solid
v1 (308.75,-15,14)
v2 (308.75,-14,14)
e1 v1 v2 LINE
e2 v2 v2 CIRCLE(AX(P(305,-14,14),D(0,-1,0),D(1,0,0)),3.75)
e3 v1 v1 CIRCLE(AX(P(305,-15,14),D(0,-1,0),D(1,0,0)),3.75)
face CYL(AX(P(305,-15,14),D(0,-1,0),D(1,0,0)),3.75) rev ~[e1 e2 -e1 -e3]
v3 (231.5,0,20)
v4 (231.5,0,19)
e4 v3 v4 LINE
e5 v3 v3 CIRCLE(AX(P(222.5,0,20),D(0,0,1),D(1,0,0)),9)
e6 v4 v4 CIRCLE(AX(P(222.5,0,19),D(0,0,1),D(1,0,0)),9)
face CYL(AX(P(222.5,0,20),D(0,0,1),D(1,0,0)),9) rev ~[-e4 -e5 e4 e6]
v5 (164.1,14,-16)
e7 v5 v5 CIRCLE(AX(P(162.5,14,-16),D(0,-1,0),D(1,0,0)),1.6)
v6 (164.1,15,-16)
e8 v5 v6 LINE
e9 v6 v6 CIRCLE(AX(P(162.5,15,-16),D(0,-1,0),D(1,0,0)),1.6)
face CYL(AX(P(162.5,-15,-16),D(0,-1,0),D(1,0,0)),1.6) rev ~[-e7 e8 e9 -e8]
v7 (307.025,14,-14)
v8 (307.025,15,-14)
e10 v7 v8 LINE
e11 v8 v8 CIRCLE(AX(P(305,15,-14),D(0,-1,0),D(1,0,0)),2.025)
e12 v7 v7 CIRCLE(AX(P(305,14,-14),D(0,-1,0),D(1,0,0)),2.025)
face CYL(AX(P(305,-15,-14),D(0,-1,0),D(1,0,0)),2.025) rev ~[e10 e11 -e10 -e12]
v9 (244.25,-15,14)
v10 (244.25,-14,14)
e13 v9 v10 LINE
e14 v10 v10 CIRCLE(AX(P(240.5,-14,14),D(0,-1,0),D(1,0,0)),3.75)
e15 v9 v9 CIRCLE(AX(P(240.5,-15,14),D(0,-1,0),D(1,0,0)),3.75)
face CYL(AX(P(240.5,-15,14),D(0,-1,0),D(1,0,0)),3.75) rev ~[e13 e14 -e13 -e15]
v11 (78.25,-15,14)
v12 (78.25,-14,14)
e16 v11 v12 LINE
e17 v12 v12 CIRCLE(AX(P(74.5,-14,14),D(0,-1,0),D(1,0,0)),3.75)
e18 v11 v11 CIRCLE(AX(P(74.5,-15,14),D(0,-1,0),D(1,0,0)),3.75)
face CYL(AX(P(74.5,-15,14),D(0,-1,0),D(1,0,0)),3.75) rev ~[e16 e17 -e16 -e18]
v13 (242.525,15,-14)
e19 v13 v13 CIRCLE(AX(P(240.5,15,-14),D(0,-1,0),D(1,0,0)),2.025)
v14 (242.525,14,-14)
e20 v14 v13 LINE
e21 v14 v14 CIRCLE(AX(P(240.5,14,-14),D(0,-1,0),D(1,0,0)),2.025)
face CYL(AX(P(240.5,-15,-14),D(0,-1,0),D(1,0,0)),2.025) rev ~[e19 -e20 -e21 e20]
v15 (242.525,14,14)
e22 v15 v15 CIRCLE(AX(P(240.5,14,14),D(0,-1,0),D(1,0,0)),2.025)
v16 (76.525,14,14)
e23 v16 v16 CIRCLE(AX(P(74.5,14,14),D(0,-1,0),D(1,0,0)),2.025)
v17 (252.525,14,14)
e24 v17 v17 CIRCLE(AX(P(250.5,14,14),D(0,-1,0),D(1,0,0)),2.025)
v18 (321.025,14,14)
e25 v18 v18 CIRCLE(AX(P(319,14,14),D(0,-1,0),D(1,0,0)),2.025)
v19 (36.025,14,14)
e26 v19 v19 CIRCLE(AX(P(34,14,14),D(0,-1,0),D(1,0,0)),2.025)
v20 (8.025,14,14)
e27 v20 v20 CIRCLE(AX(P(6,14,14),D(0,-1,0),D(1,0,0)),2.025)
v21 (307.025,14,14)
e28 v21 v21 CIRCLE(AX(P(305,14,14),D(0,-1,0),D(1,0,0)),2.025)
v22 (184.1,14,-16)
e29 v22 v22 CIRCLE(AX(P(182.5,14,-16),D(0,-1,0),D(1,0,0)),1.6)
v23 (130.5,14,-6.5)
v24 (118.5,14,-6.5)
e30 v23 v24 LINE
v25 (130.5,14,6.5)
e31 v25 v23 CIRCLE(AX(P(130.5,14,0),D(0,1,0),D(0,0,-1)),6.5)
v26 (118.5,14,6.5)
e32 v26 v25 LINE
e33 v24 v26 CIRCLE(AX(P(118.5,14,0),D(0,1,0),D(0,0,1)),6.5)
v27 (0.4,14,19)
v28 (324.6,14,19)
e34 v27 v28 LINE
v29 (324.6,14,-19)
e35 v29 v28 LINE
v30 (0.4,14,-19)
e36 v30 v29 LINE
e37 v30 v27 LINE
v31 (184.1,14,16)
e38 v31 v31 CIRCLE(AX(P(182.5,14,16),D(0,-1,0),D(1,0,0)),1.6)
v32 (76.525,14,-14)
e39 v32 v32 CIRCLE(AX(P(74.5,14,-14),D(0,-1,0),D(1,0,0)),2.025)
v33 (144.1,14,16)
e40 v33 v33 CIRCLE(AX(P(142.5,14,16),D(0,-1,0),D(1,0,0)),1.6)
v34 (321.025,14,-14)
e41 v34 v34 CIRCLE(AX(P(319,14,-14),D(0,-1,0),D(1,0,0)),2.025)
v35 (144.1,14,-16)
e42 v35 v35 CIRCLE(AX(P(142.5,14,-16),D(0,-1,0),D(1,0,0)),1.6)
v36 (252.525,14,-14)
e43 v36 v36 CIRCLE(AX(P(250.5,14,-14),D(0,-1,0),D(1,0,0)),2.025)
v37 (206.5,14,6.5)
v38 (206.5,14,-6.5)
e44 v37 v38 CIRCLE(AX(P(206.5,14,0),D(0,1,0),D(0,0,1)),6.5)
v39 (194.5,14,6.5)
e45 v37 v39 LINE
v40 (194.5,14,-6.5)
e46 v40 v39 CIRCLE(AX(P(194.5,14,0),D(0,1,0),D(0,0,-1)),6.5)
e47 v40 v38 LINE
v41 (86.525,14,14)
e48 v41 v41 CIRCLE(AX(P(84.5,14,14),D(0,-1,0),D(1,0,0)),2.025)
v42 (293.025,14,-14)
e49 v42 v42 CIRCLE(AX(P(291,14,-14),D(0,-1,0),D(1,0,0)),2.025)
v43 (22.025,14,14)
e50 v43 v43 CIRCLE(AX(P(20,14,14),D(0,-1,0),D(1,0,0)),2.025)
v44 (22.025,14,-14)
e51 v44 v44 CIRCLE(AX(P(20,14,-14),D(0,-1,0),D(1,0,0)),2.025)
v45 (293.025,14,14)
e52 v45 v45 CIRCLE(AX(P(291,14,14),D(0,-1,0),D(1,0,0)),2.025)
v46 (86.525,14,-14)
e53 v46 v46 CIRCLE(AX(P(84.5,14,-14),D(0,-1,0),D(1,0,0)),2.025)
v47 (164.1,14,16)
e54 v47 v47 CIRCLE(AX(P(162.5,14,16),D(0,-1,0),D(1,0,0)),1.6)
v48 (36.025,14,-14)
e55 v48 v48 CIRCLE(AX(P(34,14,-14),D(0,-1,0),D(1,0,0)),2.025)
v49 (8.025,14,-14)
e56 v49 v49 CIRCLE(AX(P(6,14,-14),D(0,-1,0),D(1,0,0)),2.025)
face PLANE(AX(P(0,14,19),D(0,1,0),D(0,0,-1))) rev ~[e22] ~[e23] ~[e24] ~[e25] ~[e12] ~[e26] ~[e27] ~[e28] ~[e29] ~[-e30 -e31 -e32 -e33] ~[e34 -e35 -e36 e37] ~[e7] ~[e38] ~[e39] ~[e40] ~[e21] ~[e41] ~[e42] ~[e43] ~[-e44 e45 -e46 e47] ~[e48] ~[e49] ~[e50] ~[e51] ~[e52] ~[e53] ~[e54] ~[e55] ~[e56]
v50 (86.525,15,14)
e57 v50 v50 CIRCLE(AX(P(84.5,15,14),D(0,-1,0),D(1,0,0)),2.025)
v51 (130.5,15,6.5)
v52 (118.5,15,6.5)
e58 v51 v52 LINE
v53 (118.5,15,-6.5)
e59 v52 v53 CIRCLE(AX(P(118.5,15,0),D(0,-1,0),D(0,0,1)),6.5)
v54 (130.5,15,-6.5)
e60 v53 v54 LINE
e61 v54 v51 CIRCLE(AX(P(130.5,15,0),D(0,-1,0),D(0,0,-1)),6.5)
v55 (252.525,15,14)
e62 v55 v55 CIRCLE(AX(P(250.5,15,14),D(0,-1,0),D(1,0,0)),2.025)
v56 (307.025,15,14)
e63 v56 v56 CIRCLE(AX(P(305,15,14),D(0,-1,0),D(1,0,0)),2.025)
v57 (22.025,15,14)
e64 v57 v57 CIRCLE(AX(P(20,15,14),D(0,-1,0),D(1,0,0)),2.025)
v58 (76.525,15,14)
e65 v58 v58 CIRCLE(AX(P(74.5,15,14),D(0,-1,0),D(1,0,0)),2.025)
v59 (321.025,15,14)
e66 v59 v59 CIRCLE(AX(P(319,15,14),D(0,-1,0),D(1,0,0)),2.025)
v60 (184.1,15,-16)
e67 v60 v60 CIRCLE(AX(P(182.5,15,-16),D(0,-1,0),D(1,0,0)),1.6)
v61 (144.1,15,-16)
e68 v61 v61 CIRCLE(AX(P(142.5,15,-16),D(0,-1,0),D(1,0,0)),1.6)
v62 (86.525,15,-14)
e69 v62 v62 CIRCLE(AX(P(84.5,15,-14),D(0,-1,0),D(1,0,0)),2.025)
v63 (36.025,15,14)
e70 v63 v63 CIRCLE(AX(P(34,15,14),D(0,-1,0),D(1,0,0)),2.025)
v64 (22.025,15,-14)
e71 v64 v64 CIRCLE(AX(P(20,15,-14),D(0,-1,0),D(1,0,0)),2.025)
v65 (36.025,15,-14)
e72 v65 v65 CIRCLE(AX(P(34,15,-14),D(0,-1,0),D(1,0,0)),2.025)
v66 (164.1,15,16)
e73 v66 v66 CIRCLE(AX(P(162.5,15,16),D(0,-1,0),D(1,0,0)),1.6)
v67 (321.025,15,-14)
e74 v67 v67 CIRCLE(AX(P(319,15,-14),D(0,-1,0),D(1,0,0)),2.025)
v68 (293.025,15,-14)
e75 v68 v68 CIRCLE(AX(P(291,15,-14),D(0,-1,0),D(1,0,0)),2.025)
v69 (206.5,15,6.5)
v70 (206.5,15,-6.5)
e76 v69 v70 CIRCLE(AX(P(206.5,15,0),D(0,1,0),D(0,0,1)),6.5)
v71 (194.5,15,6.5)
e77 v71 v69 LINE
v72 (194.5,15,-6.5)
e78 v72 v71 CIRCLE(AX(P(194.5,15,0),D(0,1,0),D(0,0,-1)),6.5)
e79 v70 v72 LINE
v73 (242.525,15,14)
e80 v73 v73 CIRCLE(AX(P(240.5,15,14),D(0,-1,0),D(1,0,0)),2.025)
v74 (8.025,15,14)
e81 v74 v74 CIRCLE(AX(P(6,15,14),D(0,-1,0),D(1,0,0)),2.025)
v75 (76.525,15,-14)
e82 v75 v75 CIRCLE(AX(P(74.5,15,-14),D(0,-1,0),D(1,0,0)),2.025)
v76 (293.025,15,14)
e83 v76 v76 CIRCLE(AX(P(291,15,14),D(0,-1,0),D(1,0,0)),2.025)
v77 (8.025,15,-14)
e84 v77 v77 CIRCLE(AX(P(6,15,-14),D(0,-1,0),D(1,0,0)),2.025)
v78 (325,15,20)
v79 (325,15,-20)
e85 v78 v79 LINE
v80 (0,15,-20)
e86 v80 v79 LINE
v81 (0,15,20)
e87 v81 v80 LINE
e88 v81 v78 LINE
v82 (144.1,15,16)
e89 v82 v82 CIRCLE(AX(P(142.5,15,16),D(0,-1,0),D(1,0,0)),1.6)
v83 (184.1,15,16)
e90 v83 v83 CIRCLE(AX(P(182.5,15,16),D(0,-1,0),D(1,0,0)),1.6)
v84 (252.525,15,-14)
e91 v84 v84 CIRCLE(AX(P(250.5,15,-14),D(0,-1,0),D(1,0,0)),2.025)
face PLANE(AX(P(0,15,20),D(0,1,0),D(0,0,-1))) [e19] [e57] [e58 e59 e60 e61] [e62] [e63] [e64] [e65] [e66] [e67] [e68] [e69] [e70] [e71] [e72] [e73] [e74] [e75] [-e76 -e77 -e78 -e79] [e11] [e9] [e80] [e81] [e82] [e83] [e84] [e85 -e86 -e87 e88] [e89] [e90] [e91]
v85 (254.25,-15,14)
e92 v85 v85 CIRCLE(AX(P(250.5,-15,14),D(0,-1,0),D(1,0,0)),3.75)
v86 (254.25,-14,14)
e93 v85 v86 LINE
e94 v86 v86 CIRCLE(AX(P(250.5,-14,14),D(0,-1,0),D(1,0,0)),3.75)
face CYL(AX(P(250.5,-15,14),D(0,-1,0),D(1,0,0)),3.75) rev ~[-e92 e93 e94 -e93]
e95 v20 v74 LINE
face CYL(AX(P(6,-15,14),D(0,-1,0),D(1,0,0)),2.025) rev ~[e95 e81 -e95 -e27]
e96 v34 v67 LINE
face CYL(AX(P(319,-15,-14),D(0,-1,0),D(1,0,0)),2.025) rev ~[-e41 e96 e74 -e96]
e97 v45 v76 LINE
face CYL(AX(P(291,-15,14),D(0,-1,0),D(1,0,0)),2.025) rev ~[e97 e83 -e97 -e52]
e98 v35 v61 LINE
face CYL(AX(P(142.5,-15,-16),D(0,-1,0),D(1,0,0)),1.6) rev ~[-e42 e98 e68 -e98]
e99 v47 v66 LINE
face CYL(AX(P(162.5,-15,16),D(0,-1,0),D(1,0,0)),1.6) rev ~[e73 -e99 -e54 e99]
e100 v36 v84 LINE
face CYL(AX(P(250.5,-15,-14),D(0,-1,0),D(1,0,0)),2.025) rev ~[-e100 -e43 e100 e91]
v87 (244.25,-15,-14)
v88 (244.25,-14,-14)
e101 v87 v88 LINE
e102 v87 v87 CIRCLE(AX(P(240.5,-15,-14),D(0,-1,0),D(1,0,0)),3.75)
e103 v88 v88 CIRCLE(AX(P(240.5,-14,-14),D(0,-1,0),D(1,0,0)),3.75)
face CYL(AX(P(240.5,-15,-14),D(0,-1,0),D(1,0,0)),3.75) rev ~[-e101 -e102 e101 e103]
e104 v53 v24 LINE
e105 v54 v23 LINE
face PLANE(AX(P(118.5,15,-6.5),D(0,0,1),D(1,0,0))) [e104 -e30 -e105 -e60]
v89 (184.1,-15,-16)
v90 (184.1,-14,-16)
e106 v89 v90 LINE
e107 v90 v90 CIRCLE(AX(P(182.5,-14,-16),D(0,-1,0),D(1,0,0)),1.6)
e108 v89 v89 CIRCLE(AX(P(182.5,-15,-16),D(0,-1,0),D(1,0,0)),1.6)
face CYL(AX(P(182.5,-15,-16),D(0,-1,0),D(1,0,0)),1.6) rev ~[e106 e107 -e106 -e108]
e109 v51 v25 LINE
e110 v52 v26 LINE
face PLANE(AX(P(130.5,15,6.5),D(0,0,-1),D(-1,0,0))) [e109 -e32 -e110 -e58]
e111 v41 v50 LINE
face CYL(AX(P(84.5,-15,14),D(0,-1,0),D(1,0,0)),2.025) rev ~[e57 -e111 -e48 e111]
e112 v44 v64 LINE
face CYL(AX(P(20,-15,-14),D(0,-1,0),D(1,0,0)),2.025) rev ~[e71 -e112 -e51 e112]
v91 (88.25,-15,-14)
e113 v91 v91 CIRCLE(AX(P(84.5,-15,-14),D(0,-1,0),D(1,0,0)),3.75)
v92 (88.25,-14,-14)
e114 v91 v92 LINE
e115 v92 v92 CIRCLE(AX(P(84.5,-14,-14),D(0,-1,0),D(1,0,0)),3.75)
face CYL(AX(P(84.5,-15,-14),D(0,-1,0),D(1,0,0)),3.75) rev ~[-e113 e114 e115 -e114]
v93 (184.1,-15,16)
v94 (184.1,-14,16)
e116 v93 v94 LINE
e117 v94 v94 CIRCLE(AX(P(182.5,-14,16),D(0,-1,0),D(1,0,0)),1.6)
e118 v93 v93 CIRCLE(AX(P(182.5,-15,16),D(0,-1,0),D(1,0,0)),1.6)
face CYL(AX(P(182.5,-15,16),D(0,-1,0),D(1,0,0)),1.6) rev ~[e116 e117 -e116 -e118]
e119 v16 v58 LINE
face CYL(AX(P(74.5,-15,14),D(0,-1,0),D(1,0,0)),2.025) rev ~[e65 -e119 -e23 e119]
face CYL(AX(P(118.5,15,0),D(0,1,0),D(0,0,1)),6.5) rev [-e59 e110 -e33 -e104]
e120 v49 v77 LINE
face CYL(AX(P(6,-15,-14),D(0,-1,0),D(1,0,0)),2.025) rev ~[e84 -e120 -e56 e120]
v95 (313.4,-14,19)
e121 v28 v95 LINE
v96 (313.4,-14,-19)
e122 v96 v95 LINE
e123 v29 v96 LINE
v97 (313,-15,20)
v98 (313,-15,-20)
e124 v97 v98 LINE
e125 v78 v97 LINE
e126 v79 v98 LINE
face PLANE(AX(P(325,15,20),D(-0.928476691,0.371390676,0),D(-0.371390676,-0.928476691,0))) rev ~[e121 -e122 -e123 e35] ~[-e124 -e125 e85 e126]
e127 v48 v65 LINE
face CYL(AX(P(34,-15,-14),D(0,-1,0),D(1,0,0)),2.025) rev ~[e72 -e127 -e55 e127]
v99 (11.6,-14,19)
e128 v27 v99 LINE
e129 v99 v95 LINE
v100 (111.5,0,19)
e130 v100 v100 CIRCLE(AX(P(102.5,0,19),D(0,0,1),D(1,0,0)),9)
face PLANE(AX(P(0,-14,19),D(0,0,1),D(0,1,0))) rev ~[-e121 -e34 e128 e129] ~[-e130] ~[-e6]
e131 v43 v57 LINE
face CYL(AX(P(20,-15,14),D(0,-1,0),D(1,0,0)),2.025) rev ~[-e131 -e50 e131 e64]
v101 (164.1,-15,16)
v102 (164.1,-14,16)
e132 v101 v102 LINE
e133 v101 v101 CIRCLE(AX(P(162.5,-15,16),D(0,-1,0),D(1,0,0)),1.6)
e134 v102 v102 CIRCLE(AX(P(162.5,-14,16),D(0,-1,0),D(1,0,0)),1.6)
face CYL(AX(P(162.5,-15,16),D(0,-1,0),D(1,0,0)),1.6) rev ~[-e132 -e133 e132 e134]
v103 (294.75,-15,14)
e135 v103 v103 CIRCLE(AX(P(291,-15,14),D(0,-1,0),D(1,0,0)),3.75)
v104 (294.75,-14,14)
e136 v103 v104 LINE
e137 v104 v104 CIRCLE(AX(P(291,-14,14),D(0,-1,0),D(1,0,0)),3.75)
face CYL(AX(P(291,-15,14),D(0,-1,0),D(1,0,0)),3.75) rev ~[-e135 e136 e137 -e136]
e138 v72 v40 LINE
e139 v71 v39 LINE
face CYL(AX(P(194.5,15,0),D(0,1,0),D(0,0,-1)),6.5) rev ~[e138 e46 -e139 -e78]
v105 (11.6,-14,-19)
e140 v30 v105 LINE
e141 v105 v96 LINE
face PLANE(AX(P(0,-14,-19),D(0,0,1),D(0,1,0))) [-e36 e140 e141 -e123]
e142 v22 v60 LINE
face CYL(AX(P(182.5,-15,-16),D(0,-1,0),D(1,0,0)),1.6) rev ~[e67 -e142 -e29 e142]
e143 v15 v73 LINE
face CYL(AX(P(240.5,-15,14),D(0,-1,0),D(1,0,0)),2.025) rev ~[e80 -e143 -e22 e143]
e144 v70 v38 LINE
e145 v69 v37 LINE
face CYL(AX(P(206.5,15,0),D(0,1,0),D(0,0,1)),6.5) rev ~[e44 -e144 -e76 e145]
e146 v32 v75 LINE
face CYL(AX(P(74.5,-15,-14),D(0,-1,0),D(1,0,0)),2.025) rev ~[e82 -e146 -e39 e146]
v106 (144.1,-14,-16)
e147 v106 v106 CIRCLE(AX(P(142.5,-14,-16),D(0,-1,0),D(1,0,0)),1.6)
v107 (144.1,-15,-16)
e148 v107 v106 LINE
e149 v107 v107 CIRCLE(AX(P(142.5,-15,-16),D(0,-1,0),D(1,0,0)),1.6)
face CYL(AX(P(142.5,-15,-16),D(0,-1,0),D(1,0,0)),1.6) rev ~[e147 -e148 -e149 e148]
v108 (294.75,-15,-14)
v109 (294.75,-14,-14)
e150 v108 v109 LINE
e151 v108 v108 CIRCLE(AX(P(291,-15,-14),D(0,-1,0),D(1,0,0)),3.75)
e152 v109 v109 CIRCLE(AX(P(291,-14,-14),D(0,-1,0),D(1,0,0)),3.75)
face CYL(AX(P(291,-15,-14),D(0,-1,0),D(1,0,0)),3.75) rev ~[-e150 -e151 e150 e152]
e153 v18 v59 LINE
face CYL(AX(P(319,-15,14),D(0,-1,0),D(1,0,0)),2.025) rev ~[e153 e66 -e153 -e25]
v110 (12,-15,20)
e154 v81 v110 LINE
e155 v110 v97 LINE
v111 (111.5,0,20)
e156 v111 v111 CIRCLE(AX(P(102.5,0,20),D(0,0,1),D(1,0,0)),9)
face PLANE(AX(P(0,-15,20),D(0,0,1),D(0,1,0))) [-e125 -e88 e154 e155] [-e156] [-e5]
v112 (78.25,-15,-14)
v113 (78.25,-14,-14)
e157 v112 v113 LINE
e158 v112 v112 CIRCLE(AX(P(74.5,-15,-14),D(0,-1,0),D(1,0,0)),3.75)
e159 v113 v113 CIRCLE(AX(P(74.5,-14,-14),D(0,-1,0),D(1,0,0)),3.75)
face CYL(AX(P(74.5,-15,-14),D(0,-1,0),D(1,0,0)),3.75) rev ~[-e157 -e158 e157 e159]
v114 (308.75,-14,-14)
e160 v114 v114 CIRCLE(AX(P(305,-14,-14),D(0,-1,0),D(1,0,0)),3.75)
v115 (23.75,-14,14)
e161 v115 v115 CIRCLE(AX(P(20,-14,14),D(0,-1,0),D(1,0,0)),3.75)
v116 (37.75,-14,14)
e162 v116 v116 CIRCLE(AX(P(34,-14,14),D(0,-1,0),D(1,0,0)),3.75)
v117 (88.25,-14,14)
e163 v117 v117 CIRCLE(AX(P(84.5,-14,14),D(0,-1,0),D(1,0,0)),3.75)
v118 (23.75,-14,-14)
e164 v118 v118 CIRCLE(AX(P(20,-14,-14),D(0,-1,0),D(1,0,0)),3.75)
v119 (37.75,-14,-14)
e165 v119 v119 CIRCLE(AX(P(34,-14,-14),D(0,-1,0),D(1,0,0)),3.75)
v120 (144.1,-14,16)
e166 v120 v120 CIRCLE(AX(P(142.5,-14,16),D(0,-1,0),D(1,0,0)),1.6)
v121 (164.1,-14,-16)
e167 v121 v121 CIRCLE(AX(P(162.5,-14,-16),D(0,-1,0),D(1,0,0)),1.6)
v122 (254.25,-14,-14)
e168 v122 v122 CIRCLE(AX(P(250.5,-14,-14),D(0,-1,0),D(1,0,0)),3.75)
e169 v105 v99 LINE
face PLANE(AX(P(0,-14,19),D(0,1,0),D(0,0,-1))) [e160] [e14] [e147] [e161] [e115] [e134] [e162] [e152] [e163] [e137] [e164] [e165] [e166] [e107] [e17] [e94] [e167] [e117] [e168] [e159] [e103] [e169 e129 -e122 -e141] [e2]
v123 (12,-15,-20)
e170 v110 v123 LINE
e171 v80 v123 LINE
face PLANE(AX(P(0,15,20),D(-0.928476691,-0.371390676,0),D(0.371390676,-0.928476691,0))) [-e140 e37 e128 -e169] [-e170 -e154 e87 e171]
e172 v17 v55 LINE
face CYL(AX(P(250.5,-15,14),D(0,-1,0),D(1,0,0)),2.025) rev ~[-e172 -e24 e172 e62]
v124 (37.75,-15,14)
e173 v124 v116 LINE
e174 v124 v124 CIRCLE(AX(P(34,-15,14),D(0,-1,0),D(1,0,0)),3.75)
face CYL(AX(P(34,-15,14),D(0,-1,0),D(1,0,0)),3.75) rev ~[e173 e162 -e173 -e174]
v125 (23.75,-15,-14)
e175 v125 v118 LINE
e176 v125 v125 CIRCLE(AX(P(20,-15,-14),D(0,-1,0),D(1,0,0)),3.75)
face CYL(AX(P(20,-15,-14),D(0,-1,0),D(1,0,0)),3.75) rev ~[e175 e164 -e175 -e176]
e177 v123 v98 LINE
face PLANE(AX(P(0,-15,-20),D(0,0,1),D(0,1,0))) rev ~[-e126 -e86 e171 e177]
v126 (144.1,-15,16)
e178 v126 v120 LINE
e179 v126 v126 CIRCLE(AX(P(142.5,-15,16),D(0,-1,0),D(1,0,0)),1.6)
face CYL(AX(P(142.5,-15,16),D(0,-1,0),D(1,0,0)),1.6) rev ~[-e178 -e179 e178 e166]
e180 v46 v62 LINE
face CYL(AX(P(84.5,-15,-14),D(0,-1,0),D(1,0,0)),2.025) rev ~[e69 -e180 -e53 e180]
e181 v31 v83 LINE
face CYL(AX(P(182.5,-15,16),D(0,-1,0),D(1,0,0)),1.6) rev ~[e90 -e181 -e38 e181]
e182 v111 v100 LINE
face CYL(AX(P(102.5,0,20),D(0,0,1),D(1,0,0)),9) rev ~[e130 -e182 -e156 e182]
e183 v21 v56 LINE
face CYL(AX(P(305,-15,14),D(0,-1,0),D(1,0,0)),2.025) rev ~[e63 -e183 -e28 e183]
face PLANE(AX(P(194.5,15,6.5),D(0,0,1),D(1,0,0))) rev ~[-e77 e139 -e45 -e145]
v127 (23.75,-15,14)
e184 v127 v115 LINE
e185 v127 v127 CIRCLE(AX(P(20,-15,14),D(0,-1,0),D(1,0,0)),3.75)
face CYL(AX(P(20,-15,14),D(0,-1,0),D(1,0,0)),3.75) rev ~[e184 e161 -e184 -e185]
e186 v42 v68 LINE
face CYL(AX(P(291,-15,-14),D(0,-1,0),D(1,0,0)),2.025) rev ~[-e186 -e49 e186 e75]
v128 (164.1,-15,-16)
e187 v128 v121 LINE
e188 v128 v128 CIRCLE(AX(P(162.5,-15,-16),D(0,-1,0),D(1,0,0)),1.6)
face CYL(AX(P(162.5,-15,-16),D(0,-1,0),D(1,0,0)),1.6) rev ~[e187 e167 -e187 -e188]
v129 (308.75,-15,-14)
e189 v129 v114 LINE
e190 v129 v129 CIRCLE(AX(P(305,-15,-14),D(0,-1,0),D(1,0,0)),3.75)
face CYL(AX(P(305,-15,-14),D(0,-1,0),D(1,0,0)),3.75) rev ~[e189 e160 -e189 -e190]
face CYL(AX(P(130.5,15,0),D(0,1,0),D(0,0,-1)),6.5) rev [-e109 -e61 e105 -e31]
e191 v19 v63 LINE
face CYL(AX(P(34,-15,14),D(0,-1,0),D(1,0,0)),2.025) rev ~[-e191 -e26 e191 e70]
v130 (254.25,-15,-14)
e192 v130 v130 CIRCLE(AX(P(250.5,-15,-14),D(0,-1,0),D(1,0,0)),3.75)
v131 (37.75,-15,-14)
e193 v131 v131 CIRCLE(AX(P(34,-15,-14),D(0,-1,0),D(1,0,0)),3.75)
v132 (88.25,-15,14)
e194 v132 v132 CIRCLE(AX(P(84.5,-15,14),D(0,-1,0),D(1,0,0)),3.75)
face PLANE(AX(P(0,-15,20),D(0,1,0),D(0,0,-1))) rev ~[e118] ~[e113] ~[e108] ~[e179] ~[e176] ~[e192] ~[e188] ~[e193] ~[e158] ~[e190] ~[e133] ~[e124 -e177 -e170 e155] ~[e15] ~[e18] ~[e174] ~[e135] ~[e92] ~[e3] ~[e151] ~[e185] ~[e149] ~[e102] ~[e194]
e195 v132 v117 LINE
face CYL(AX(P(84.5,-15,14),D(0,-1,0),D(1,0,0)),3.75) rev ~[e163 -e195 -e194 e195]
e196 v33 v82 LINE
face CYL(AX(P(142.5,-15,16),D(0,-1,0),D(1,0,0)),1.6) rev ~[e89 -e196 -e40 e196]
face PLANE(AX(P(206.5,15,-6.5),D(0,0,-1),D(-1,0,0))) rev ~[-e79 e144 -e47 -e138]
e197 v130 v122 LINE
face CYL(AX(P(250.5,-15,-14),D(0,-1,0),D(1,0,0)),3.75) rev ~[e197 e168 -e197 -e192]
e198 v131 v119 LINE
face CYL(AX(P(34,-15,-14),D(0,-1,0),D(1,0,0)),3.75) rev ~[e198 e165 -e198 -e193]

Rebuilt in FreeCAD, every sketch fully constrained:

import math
import FreeCAD as App
import Part
import Sketcher

V = App.Vector
Q = App.Units.Quantity


def add_polygon(sketch, points):
    """Adds a closed chain of lines whose ends are joined by coincident constraints."""
    first, n = sketch.GeometryCount, len(points)
    for a, b in zip(points, points[1:] + points[:1]):
        sketch.addGeometry(Part.LineSegment(App.Vector(*a, 0), App.Vector(*b, 0)), False)
    for i in range(n):
        sketch.addConstraint(Sketcher.Constraint("Coincident", first + i, 2, first + (i + 1) % n, 1))

doc = App.newDocument("Part")
params = doc.addObject("Spreadsheet::Sheet", "Params")
for row, (alias, value) in enumerate([
    ("sketch1_width", "30 mm"),
    ("sketch1_width2", "28 mm"),
    ("sketch1_height", "40 mm"),
    ("sketch1_height2", "38 mm"),
    ("pad1_length", "325 mm"),
    ("sketch2_diameter", "4.05 mm"),
    ("sketch3_diameter", "4.05 mm"),
    ("sketch4_diameter", "3.2 mm"),
    ("sketch5_width", "12 mm"),
    ("sketch5_height", "30 mm"),
    ("sketch6_diameter", "7.5 mm"),
    ("pocket5_length", "1 mm"),
    ("sketch7_diameter", "7.5 mm"),
    ("pocket6_length", "1 mm"),
    ("sketch8_diameter", "7.5 mm"),
    ("pocket7_length", "1 mm"),
    ("sketch9_diameter", "7.5 mm"),
    ("pocket8_length", "1 mm"),
    ("sketch10_diameter", "7.5 mm"),
    ("pocket9_length", "1 mm"),
    ("sketch11_diameter", "7.5 mm"),
    ("pocket10_length", "1 mm"),
    ("sketch12_diameter", "7.5 mm"),
    ("pocket11_length", "1 mm"),
    ("sketch13_diameter", "7.5 mm"),
    ("pocket12_length", "1 mm"),
    ("sketch14_diameter", "7.5 mm"),
    ("pocket13_length", "1 mm"),
    ("sketch15_diameter", "7.5 mm"),
    ("pocket14_length", "1 mm"),
    ("sketch16_diameter", "7.5 mm"),
    ("pocket15_length", "1 mm"),
    ("sketch17_diameter", "7.5 mm"),
    ("pocket16_length", "1 mm"),
    ("sketch18_diameter", "7.5 mm"),
    ("pocket17_length", "1 mm"),
    ("sketch19_diameter", "7.5 mm"),
    ("pocket18_length", "1 mm"),
    ("sketch20_diameter", "7.5 mm"),
    ("pocket19_length", "1 mm"),
    ("sketch21_diameter", "7.5 mm"),
    ("pocket20_length", "1 mm"),
    ("sketch22_diameter", "18 mm"),
    ("sketch23_diameter", "18 mm"),
    ("sketch24_radius", "6.5 mm"),
    ("sketch24_width", "12 mm"),
    ("sketch25_radius", "6.5 mm"),
    ("sketch25_width", "12 mm"),
], start=1):
    params.set(f"A{row}", alias)
    params.set(f"B{row}", "=" + value)
    params.setAlias(f"B{row}", alias)

body = doc.addObject("PartDesign::Body", "Body")

# Sketch on YZ plane
sketch1 = body.newObject("Sketcher::SketchObject", "Sketch")
sketch1.AttachmentSupport = (doc.getObject("YZ_Plane"), [""])
sketch1.MapMode = "FlatFace"
add_polygon(sketch1, [(15, 20), (-15, 20), (-15, -20), (15, -20)])  # lines 0-3
add_polygon(sketch1, [(-14, -19), (-14, 19), (14, 19), (14, -19)])  # lines 4-7
sketch1.addConstraint([
    Sketcher.Constraint("Horizontal", 0),
    Sketcher.Constraint("Vertical", 1),
    Sketcher.Constraint("Horizontal", 2),
    Sketcher.Constraint("Vertical", 3),
    Sketcher.Constraint("Vertical", 4),
    Sketcher.Constraint("Horizontal", 5),
    Sketcher.Constraint("Vertical", 6),
    Sketcher.Constraint("Horizontal", 7),
    Sketcher.Constraint("Symmetric", 0, 2, 2, 2, -1, 1),
    Sketcher.Constraint("Symmetric", 4, 2, 6, 2, -1, 1),
    Sketcher.Constraint("DistanceX", 0, 2, 0, 1, Q("30 mm")),
    Sketcher.Constraint("DistanceX", 5, 1, 5, 2, Q("28 mm")),
    Sketcher.Constraint("DistanceY", 1, 2, 1, 1, Q("40 mm")),
    Sketcher.Constraint("DistanceY", 4, 1, 4, 2, Q("38 mm")),
])
sketch1.setExpression("Constraints[18]", "Params.sketch1_width")
sketch1.setExpression("Constraints[19]", "Params.sketch1_width2")
sketch1.setExpression("Constraints[20]", "Params.sketch1_height")
sketch1.setExpression("Constraints[21]", "Params.sketch1_height2")
pad1 = body.newObject("PartDesign::Pad", "Pad")
pad1.Profile = sketch1
pad1.setExpression("Length", "Params.pad1_length")

# Sketch on XZ plane
sketch2 = body.newObject("Sketcher::SketchObject", "Sketch001")
sketch2.AttachmentSupport = (doc.getObject("XZ_Plane"), [""])
sketch2.MapMode = "FlatFace"
sketch2.AttachmentOffset = App.Placement(V(0, 0, 15), App.Rotation())
sketch2.addGeometry([
    Part.Circle(V(74.5, 14, 0), V(0, 0, 1), 2),  # 0
    Part.Circle(V(84.5, 14, 0), V(0, 0, 1), 2),  # 1
    Part.Circle(V(84.5, -14, 0), V(0, 0, 1), 2),  # 2
    Part.Circle(V(74.5, -14, 0), V(0, 0, 1), 2),  # 3
    Part.Circle(V(250.5, -14, 0), V(0, 0, 1), 2),  # 4
    Part.Circle(V(240.5, -14, 0), V(0, 0, 1), 2),  # 5
    Part.Circle(V(240.5, 14, 0), V(0, 0, 1), 2),  # 6
    Part.Circle(V(250.5, 14, 0), V(0, 0, 1), 2),  # 7
], False)
sketch2.addConstraint([
    Sketcher.Constraint("Equal", 0, 1),
    Sketcher.Constraint("Equal", 1, 2),
    Sketcher.Constraint("Equal", 2, 3),
    Sketcher.Constraint("Equal", 3, 4),
    Sketcher.Constraint("Equal", 4, 5),
    Sketcher.Constraint("Equal", 5, 6),
    Sketcher.Constraint("Equal", 6, 7),
    Sketcher.Constraint("Symmetric", 1, 3, 2, 3, -1),
    Sketcher.Constraint("Symmetric", 0, 3, 3, 3, -1),
    Sketcher.Constraint("Symmetric", 5, 3, 6, 3, -1),
    Sketcher.Constraint("Symmetric", 4, 3, 7, 3, -1),
    Sketcher.Constraint("Horizontal", 0, 3, 1, 3),
    Sketcher.Constraint("Horizontal", 3, 3, 4, 3),
    Sketcher.Constraint("Horizontal", 4, 3, 5, 3),
    Sketcher.Constraint("Diameter", 0, Q("4.05 mm")),
    Sketcher.Constraint("DistanceY", -1, 1, 0, 3, Q("14 mm")),
    Sketcher.Constraint("DistanceX", 0, 3, 1, 3, Q("10 mm")),
    Sketcher.Constraint("DistanceX", 2, 3, 4, 3, Q("166 mm")),
    Sketcher.Constraint("DistanceX", 5, 3, 4, 3, Q("10 mm")),
    Sketcher.Constraint("DistanceX", -1, 1, 0, 3, Q("74.5 mm")),
])
sketch2.setExpression("Constraints[14]", "Params.sketch2_diameter")
pocket1 = body.newObject("PartDesign::Pocket", "Pocket")
pocket1.Profile = sketch2
pocket1.Type = "ThroughAll"

# Sketch on XZ plane
sketch3 = body.newObject("Sketcher::SketchObject", "Sketch002")
sketch3.AttachmentSupport = (doc.getObject("XZ_Plane"), [""])
sketch3.MapMode = "FlatFace"
sketch3.AttachmentOffset = App.Placement(V(0, 0, 15), App.Rotation())
sketch3.addGeometry([
    Part.Circle(V(291, 14, 0), V(0, 0, 1), 2),  # 0
    Part.Circle(V(305, 14, 0), V(0, 0, 1), 2),  # 1
    Part.Circle(V(319, 14, 0), V(0, 0, 1), 2),  # 2
    Part.Circle(V(319, -14, 0), V(0, 0, 1), 2),  # 3
    Part.Circle(V(305, -14, 0), V(0, 0, 1), 2),  # 4
    Part.Circle(V(291, -14, 0), V(0, 0, 1), 2),  # 5
    Part.Circle(V(34, -14, 0), V(0, 0, 1), 2),  # 6
    Part.Circle(V(20, -14, 0), V(0, 0, 1), 2),  # 7
    Part.Circle(V(6, -14, 0), V(0, 0, 1), 2),  # 8
    Part.Circle(V(6, 14, 0), V(0, 0, 1), 2),  # 9
    Part.Circle(V(20, 14, 0), V(0, 0, 1), 2),  # 10
    Part.Circle(V(34, 14, 0), V(0, 0, 1), 2),  # 11
], False)
sketch3.addConstraint([
    Sketcher.Constraint("Equal", 0, 1),
    Sketcher.Constraint("Equal", 1, 2),
    Sketcher.Constraint("Equal", 2, 3),
    Sketcher.Constraint("Equal", 3, 4),
    Sketcher.Constraint("Equal", 4, 5),
    Sketcher.Constraint("Equal", 5, 6),
    Sketcher.Constraint("Equal", 6, 7),
    Sketcher.Constraint("Equal", 7, 8),
    Sketcher.Constraint("Equal", 8, 9),
    Sketcher.Constraint("Equal", 9, 10),
    Sketcher.Constraint("Equal", 10, 11),
    Sketcher.Constraint("Symmetric", 2, 3, 3, 3, -1),
    Sketcher.Constraint("Symmetric", 1, 3, 4, 3, -1),
    Sketcher.Constraint("Symmetric", 0, 3, 5, 3, -1),
    Sketcher.Constraint("Symmetric", 8, 3, 9, 3, -1),
    Sketcher.Constraint("Symmetric", 7, 3, 10, 3, -1),
    Sketcher.Constraint("Symmetric", 6, 3, 11, 3, -1),
    Sketcher.Constraint("Horizontal", 0, 3, 1, 3),
    Sketcher.Constraint("Horizontal", 1, 3, 2, 3),
    Sketcher.Constraint("Horizontal", 5, 3, 6, 3),
    Sketcher.Constraint("Horizontal", 6, 3, 7, 3),
    Sketcher.Constraint("Horizontal", 7, 3, 8, 3),
    Sketcher.Constraint("Diameter", 0, Q("4.05 mm")),
    Sketcher.Constraint("DistanceX", -1, 1, 0, 3, Q("291 mm")),
    Sketcher.Constraint("DistanceY", -1, 1, 0, 3, Q("14 mm")),
    Sketcher.Constraint("DistanceX", -1, 1, 1, 3, Q("305 mm")),
    Sketcher.Constraint("DistanceX", -1, 1, 2, 3, Q("319 mm")),
    Sketcher.Constraint("DistanceX", -1, 1, 6, 3, Q("34 mm")),
    Sketcher.Constraint("DistanceX", -1, 1, 7, 3, Q("20 mm")),
    Sketcher.Constraint("DistanceX", -1, 1, 8, 3, Q("6 mm")),
])
sketch3.setExpression("Constraints[22]", "Params.sketch3_diameter")
pocket2 = body.newObject("PartDesign::Pocket", "Pocket001")
pocket2.Profile = sketch3
pocket2.Type = "ThroughAll"

# Sketch on XZ plane
sketch4 = body.newObject("Sketcher::SketchObject", "Sketch003")
sketch4.AttachmentSupport = (doc.getObject("XZ_Plane"), [""])
sketch4.MapMode = "FlatFace"
sketch4.AttachmentOffset = App.Placement(V(0, 0, 15), App.Rotation())
sketch4.addGeometry([
    Part.Circle(V(142.5, 16, 0), V(0, 0, 1), 1.6),  # 0
    Part.Circle(V(162.5, 16, 0), V(0, 0, 1), 1.6),  # 1
    Part.Circle(V(182.5, 16, 0), V(0, 0, 1), 1.6),  # 2
    Part.Circle(V(182.5, -16, 0), V(0, 0, 1), 1.6),  # 3
    Part.Circle(V(162.5, -16, 0), V(0, 0, 1), 1.6),  # 4
    Part.Circle(V(142.5, -16, 0), V(0, 0, 1), 1.6),  # 5
], False)
sketch4.addConstraint([
    Sketcher.Constraint("Equal", 0, 1),
    Sketcher.Constraint("Equal", 1, 2),
    Sketcher.Constraint("Equal", 2, 3),
    Sketcher.Constraint("Equal", 3, 4),
    Sketcher.Constraint("Equal", 4, 5),
    Sketcher.Constraint("Symmetric", 2, 3, 3, 3, -1),
    Sketcher.Constraint("Symmetric", 1, 3, 4, 3, -1),
    Sketcher.Constraint("Symmetric", 0, 3, 5, 3, -1),
    Sketcher.Constraint("Horizontal", 0, 3, 1, 3),
    Sketcher.Constraint("Horizontal", 1, 3, 2, 3),
    Sketcher.Constraint("Diameter", 0, Q("3.2 mm")),
    Sketcher.Constraint("DistanceY", -1, 1, 0, 3, Q("16 mm")),
    Sketcher.Constraint("DistanceX", 0, 3, 1, 3, Q("20 mm")),
    Sketcher.Constraint("DistanceX", 1, 3, 2, 3, Q("20 mm")),
    Sketcher.Constraint("DistanceX", -1, 1, 0, 3, Q("142.5 mm")),
])
sketch4.setExpression("Constraints[10]", "Params.sketch4_diameter")
pocket3 = body.newObject("PartDesign::Pocket", "Pocket002")
pocket3.Profile = sketch4
pocket3.Type = "ThroughAll"

# Sketch on XY plane
sketch5 = body.newObject("Sketcher::SketchObject", "Sketch004")
sketch5.AttachmentSupport = (doc.getObject("XY_Plane"), [""])
sketch5.MapMode = "FlatFace"
sketch5.AttachmentOffset = App.Placement(V(0, 0, 20), App.Rotation())
add_polygon(sketch5, [(12, -15), (0, 15), (0, -15)])  # lines 0-2
add_polygon(sketch5, [(313, -15), (325, -15), (325, 15)])  # lines 3-5
sketch5.addConstraint([
    Sketcher.Constraint("Vertical", 1),
    Sketcher.Constraint("Horizontal", 2),
    Sketcher.Constraint("Horizontal", 3),
    Sketcher.Constraint("Vertical", 4),
    Sketcher.Constraint("Symmetric", 0, 2, 1, 2, -1, 1),
    Sketcher.Constraint("Horizontal", 2, 2, 3, 2),
    Sketcher.Constraint("Horizontal", 0, 2, 4, 2),
    Sketcher.Constraint("Equal", 2, 3),
    Sketcher.Constraint("DistanceX", 2, 1, 2, 2, Q("12 mm")),
    Sketcher.Constraint("DistanceY", 1, 2, 1, 1, Q("30 mm")),
    Sketcher.Constraint("DistanceX", -1, 1, 3, 2, Q("325 mm")),
])
sketch5.setExpression("Constraints[14]", "Params.sketch5_width")
sketch5.setExpression("Constraints[15]", "Params.sketch5_height")
pocket4 = body.newObject("PartDesign::Pocket", "Pocket003")
pocket4.Profile = sketch5
pocket4.Type = "ThroughAll"

# Sketch on XZ plane
sketch6 = body.newObject("Sketcher::SketchObject", "Sketch005")
sketch6.AttachmentSupport = (doc.getObject("XZ_Plane"), [""])
sketch6.MapMode = "FlatFace"
sketch6.AttachmentOffset = App.Placement(V(0, 0, 15), App.Rotation())
sketch6.addGeometry(Part.Circle(V(74.5, 14, 0), V(0, 0, 1), 3.8), False)
sketch6.addConstraint([
    Sketcher.Constraint("Diameter", 0, Q("7.5 mm")),
    Sketcher.Constraint("DistanceY", -1, 1, 0, 3, Q("14 mm")),
    Sketcher.Constraint("DistanceX", -1, 1, 0, 3, Q("74.5 mm")),
])
sketch6.setExpression("Constraints[0]", "Params.sketch6_diameter")
pocket5 = body.newObject("PartDesign::Pocket", "Pocket004")
pocket5.Profile = sketch6
pocket5.setExpression("Length", "Params.pocket5_length")

# Sketch on XZ plane
sketch7 = body.newObject("Sketcher::SketchObject", "Sketch006")
sketch7.AttachmentSupport = (doc.getObject("XZ_Plane"), [""])
sketch7.MapMode = "FlatFace"
sketch7.AttachmentOffset = App.Placement(V(0, 0, 15), App.Rotation())
sketch7.addGeometry(Part.Circle(V(84.5, 14, 0), V(0, 0, 1), 3.8), False)
sketch7.addConstraint([
    Sketcher.Constraint("Diameter", 0, Q("7.5 mm")),
    Sketcher.Constraint("DistanceY", -1, 1, 0, 3, Q("14 mm")),
    Sketcher.Constraint("DistanceX", -1, 1, 0, 3, Q("84.5 mm")),
])
sketch7.setExpression("Constraints[0]", "Params.sketch7_diameter")
pocket6 = body.newObject("PartDesign::Pocket", "Pocket005")
pocket6.Profile = sketch7
pocket6.setExpression("Length", "Params.pocket6_length")

# Sketch on XZ plane
sketch8 = body.newObject("Sketcher::SketchObject", "Sketch007")
sketch8.AttachmentSupport = (doc.getObject("XZ_Plane"), [""])
sketch8.MapMode = "FlatFace"
sketch8.AttachmentOffset = App.Placement(V(0, 0, 15), App.Rotation())
sketch8.addGeometry(Part.Circle(V(84.5, -14, 0), V(0, 0, 1), 3.8), False)
sketch8.addConstraint([
    Sketcher.Constraint("Diameter", 0, Q("7.5 mm")),
    Sketcher.Constraint("DistanceY", 0, 3, -1, 1, Q("14 mm")),
    Sketcher.Constraint("DistanceX", -1, 1, 0, 3, Q("84.5 mm")),
])
sketch8.setExpression("Constraints[0]", "Params.sketch8_diameter")
pocket7 = body.newObject("PartDesign::Pocket", "Pocket006")
pocket7.Profile = sketch8
pocket7.setExpression("Length", "Params.pocket7_length")

# Sketch on XZ plane
sketch9 = body.newObject("Sketcher::SketchObject", "Sketch008")
sketch9.AttachmentSupport = (doc.getObject("XZ_Plane"), [""])
sketch9.MapMode = "FlatFace"
sketch9.AttachmentOffset = App.Placement(V(0, 0, 15), App.Rotation())
sketch9.addGeometry(Part.Circle(V(74.5, -14, 0), V(0, 0, 1), 3.8), False)
sketch9.addConstraint([
    Sketcher.Constraint("Diameter", 0, Q("7.5 mm")),
    Sketcher.Constraint("DistanceY", 0, 3, -1, 1, Q("14 mm")),
    Sketcher.Constraint("DistanceX", -1, 1, 0, 3, Q("74.5 mm")),
])
sketch9.setExpression("Constraints[0]", "Params.sketch9_diameter")
pocket8 = body.newObject("PartDesign::Pocket", "Pocket007")
pocket8.Profile = sketch9
pocket8.setExpression("Length", "Params.pocket8_length")

# Sketch on XZ plane
sketch10 = body.newObject("Sketcher::SketchObject", "Sketch009")
sketch10.AttachmentSupport = (doc.getObject("XZ_Plane"), [""])
sketch10.MapMode = "FlatFace"
sketch10.AttachmentOffset = App.Placement(V(0, 0, 15), App.Rotation())
sketch10.addGeometry(Part.Circle(V(250.5, -14, 0), V(0, 0, 1), 3.8), False)
sketch10.addConstraint([
    Sketcher.Constraint("Diameter", 0, Q("7.5 mm")),
    Sketcher.Constraint("DistanceY", 0, 3, -1, 1, Q("14 mm")),
    Sketcher.Constraint("DistanceX", -1, 1, 0, 3, Q("250.5 mm")),
])
sketch10.setExpression("Constraints[0]", "Params.sketch10_diameter")
pocket9 = body.newObject("PartDesign::Pocket", "Pocket008")
pocket9.Profile = sketch10
pocket9.setExpression("Length", "Params.pocket9_length")

# Sketch on XZ plane
sketch11 = body.newObject("Sketcher::SketchObject", "Sketch010")
sketch11.AttachmentSupport = (doc.getObject("XZ_Plane"), [""])
sketch11.MapMode = "FlatFace"
sketch11.AttachmentOffset = App.Placement(V(0, 0, 15), App.Rotation())
sketch11.addGeometry(Part.Circle(V(240.5, -14, 0), V(0, 0, 1), 3.8), False)
sketch11.addConstraint([
    Sketcher.Constraint("Diameter", 0, Q("7.5 mm")),
    Sketcher.Constraint("DistanceY", 0, 3, -1, 1, Q("14 mm")),
    Sketcher.Constraint("DistanceX", -1, 1, 0, 3, Q("240.5 mm")),
])
sketch11.setExpression("Constraints[0]", "Params.sketch11_diameter")
pocket10 = body.newObject("PartDesign::Pocket", "Pocket009")
pocket10.Profile = sketch11
pocket10.setExpression("Length", "Params.pocket10_length")

# Sketch on XZ plane
sketch12 = body.newObject("Sketcher::SketchObject", "Sketch011")
sketch12.AttachmentSupport = (doc.getObject("XZ_Plane"), [""])
sketch12.MapMode = "FlatFace"
sketch12.AttachmentOffset = App.Placement(V(0, 0, 15), App.Rotation())
sketch12.addGeometry(Part.Circle(V(240.5, 14, 0), V(0, 0, 1), 3.8), False)
sketch12.addConstraint([
    Sketcher.Constraint("Diameter", 0, Q("7.5 mm")),
    Sketcher.Constraint("DistanceY", -1, 1, 0, 3, Q("14 mm")),
    Sketcher.Constraint("DistanceX", -1, 1, 0, 3, Q("240.5 mm")),
])
sketch12.setExpression("Constraints[0]", "Params.sketch12_diameter")
pocket11 = body.newObject("PartDesign::Pocket", "Pocket010")
pocket11.Profile = sketch12
pocket11.setExpression("Length", "Params.pocket11_length")

# Sketch on XZ plane
sketch13 = body.newObject("Sketcher::SketchObject", "Sketch012")
sketch13.AttachmentSupport = (doc.getObject("XZ_Plane"), [""])
sketch13.MapMode = "FlatFace"
sketch13.AttachmentOffset = App.Placement(V(0, 0, 15), App.Rotation())
sketch13.addGeometry(Part.Circle(V(250.5, 14, 0), V(0, 0, 1), 3.8), False)
sketch13.addConstraint([
    Sketcher.Constraint("Diameter", 0, Q("7.5 mm")),
    Sketcher.Constraint("DistanceY", -1, 1, 0, 3, Q("14 mm")),
    Sketcher.Constraint("DistanceX", -1, 1, 0, 3, Q("250.5 mm")),
])
sketch13.setExpression("Constraints[0]", "Params.sketch13_diameter")
pocket12 = body.newObject("PartDesign::Pocket", "Pocket011")
pocket12.Profile = sketch13
pocket12.setExpression("Length", "Params.pocket12_length")

# Sketch on XZ plane
sketch14 = body.newObject("Sketcher::SketchObject", "Sketch013")
sketch14.AttachmentSupport = (doc.getObject("XZ_Plane"), [""])
sketch14.MapMode = "FlatFace"
sketch14.AttachmentOffset = App.Placement(V(0, 0, 15), App.Rotation())
sketch14.addGeometry(Part.Circle(V(20, 14, 0), V(0, 0, 1), 3.8), False)
sketch14.addConstraint([
    Sketcher.Constraint("Diameter", 0, Q("7.5 mm")),
    Sketcher.Constraint("DistanceX", -1, 1, 0, 3, Q("20 mm")),
    Sketcher.Constraint("DistanceY", -1, 1, 0, 3, Q("14 mm")),
])
sketch14.setExpression("Constraints[0]", "Params.sketch14_diameter")
pocket13 = body.newObject("PartDesign::Pocket", "Pocket012")
pocket13.Profile = sketch14
pocket13.setExpression("Length", "Params.pocket13_length")

# Sketch on XZ plane
sketch15 = body.newObject("Sketcher::SketchObject", "Sketch014")
sketch15.AttachmentSupport = (doc.getObject("XZ_Plane"), [""])
sketch15.MapMode = "FlatFace"
sketch15.AttachmentOffset = App.Placement(V(0, 0, 15), App.Rotation())
sketch15.addGeometry(Part.Circle(V(34, 14, 0), V(0, 0, 1), 3.8), False)
sketch15.addConstraint([
    Sketcher.Constraint("Diameter", 0, Q("7.5 mm")),
    Sketcher.Constraint("DistanceX", -1, 1, 0, 3, Q("34 mm")),
    Sketcher.Constraint("DistanceY", -1, 1, 0, 3, Q("14 mm")),
])
sketch15.setExpression("Constraints[0]", "Params.sketch15_diameter")
pocket14 = body.newObject("PartDesign::Pocket", "Pocket013")
pocket14.Profile = sketch15
pocket14.setExpression("Length", "Params.pocket14_length")

# Sketch on XZ plane
sketch16 = body.newObject("Sketcher::SketchObject", "Sketch015")
sketch16.AttachmentSupport = (doc.getObject("XZ_Plane"), [""])
sketch16.MapMode = "FlatFace"
sketch16.AttachmentOffset = App.Placement(V(0, 0, 15), App.Rotation())
sketch16.addGeometry(Part.Circle(V(34, -14, 0), V(0, 0, 1), 3.8), False)
sketch16.addConstraint([
    Sketcher.Constraint("Diameter", 0, Q("7.5 mm")),
    Sketcher.Constraint("DistanceX", -1, 1, 0, 3, Q("34 mm")),
    Sketcher.Constraint("DistanceY", 0, 3, -1, 1, Q("14 mm")),
])
sketch16.setExpression("Constraints[0]", "Params.sketch16_diameter")
pocket15 = body.newObject("PartDesign::Pocket", "Pocket014")
pocket15.Profile = sketch16
pocket15.setExpression("Length", "Params.pocket15_length")

# Sketch on XZ plane
sketch17 = body.newObject("Sketcher::SketchObject", "Sketch016")
sketch17.AttachmentSupport = (doc.getObject("XZ_Plane"), [""])
sketch17.MapMode = "FlatFace"
sketch17.AttachmentOffset = App.Placement(V(0, 0, 15), App.Rotation())
sketch17.addGeometry(Part.Circle(V(20, -14, 0), V(0, 0, 1), 3.8), False)
sketch17.addConstraint([
    Sketcher.Constraint("Diameter", 0, Q("7.5 mm")),
    Sketcher.Constraint("DistanceX", -1, 1, 0, 3, Q("20 mm")),
    Sketcher.Constraint("DistanceY", 0, 3, -1, 1, Q("14 mm")),
])
sketch17.setExpression("Constraints[0]", "Params.sketch17_diameter")
pocket16 = body.newObject("PartDesign::Pocket", "Pocket015")
pocket16.Profile = sketch17
pocket16.setExpression("Length", "Params.pocket16_length")

# Sketch on XZ plane
sketch18 = body.newObject("Sketcher::SketchObject", "Sketch017")
sketch18.AttachmentSupport = (doc.getObject("XZ_Plane"), [""])
sketch18.MapMode = "FlatFace"
sketch18.AttachmentOffset = App.Placement(V(0, 0, 15), App.Rotation())
sketch18.addGeometry(Part.Circle(V(305, -14, 0), V(0, 0, 1), 3.8), False)
sketch18.addConstraint([
    Sketcher.Constraint("Diameter", 0, Q("7.5 mm")),
    Sketcher.Constraint("DistanceX", -1, 1, 0, 3, Q("305 mm")),
    Sketcher.Constraint("DistanceY", 0, 3, -1, 1, Q("14 mm")),
])
sketch18.setExpression("Constraints[0]", "Params.sketch18_diameter")
pocket17 = body.newObject("PartDesign::Pocket", "Pocket016")
pocket17.Profile = sketch18
pocket17.setExpression("Length", "Params.pocket17_length")

# Sketch on XZ plane
sketch19 = body.newObject("Sketcher::SketchObject", "Sketch018")
sketch19.AttachmentSupport = (doc.getObject("XZ_Plane"), [""])
sketch19.MapMode = "FlatFace"
sketch19.AttachmentOffset = App.Placement(V(0, 0, 15), App.Rotation())
sketch19.addGeometry(Part.Circle(V(291, -14, 0), V(0, 0, 1), 3.8), False)
sketch19.addConstraint([
    Sketcher.Constraint("Diameter", 0, Q("7.5 mm")),
    Sketcher.Constraint("DistanceX", -1, 1, 0, 3, Q("291 mm")),
    Sketcher.Constraint("DistanceY", 0, 3, -1, 1, Q("14 mm")),
])
sketch19.setExpression("Constraints[0]", "Params.sketch19_diameter")
pocket18 = body.newObject("PartDesign::Pocket", "Pocket017")
pocket18.Profile = sketch19
pocket18.setExpression("Length", "Params.pocket18_length")

# Sketch on XZ plane
sketch20 = body.newObject("Sketcher::SketchObject", "Sketch019")
sketch20.AttachmentSupport = (doc.getObject("XZ_Plane"), [""])
sketch20.MapMode = "FlatFace"
sketch20.AttachmentOffset = App.Placement(V(0, 0, 15), App.Rotation())
sketch20.addGeometry(Part.Circle(V(291, 14, 0), V(0, 0, 1), 3.8), False)
sketch20.addConstraint([
    Sketcher.Constraint("Diameter", 0, Q("7.5 mm")),
    Sketcher.Constraint("DistanceX", -1, 1, 0, 3, Q("291 mm")),
    Sketcher.Constraint("DistanceY", -1, 1, 0, 3, Q("14 mm")),
])
sketch20.setExpression("Constraints[0]", "Params.sketch20_diameter")
pocket19 = body.newObject("PartDesign::Pocket", "Pocket018")
pocket19.Profile = sketch20
pocket19.setExpression("Length", "Params.pocket19_length")

# Sketch on XZ plane
sketch21 = body.newObject("Sketcher::SketchObject", "Sketch020")
sketch21.AttachmentSupport = (doc.getObject("XZ_Plane"), [""])
sketch21.MapMode = "FlatFace"
sketch21.AttachmentOffset = App.Placement(V(0, 0, 15), App.Rotation())
sketch21.addGeometry(Part.Circle(V(305, 14, 0), V(0, 0, 1), 3.8), False)
sketch21.addConstraint([
    Sketcher.Constraint("Diameter", 0, Q("7.5 mm")),
    Sketcher.Constraint("DistanceX", -1, 1, 0, 3, Q("305 mm")),
    Sketcher.Constraint("DistanceY", -1, 1, 0, 3, Q("14 mm")),
])
sketch21.setExpression("Constraints[0]", "Params.sketch21_diameter")
pocket20 = body.newObject("PartDesign::Pocket", "Pocket019")
pocket20.Profile = sketch21
pocket20.setExpression("Length", "Params.pocket20_length")

# Sketch on XY plane
sketch22 = body.newObject("Sketcher::SketchObject", "Sketch021")
sketch22.AttachmentSupport = (doc.getObject("XY_Plane"), [""])
sketch22.MapMode = "FlatFace"
sketch22.AttachmentOffset = App.Placement(V(0, 0, 20), App.Rotation())
sketch22.addGeometry(Part.Circle(V(102, 0, 0), V(0, 0, 1), 9), False)
sketch22.addConstraint([
    Sketcher.Constraint("PointOnObject", 0, 3, -1),
    Sketcher.Constraint("Diameter", 0, Q("18 mm")),
    Sketcher.Constraint("DistanceX", -1, 1, 0, 3, Q("102.5 mm")),
])
sketch22.setExpression("Constraints[1]", "Params.sketch22_diameter")
pocket21 = body.newObject("PartDesign::Pocket", "Pocket020")
pocket21.Profile = sketch22
pocket21.Type = "UpToFirst"

# Sketch on XY plane
sketch23 = body.newObject("Sketcher::SketchObject", "Sketch022")
sketch23.AttachmentSupport = (doc.getObject("XY_Plane"), [""])
sketch23.MapMode = "FlatFace"
sketch23.AttachmentOffset = App.Placement(V(0, 0, 20), App.Rotation())
sketch23.addGeometry(Part.Circle(V(222, 0, 0), V(0, 0, 1), 9), False)
sketch23.addConstraint([
    Sketcher.Constraint("PointOnObject", 0, 3, -1),
    Sketcher.Constraint("Diameter", 0, Q("18 mm")),
    Sketcher.Constraint("DistanceX", -1, 1, 0, 3, Q("222.5 mm")),
])
sketch23.setExpression("Constraints[1]", "Params.sketch23_diameter")
pocket22 = body.newObject("PartDesign::Pocket", "Pocket021")
pocket22.Profile = sketch23
pocket22.Type = "UpToFirst"

# Sketch on XZ plane
sketch24 = body.newObject("Sketcher::SketchObject", "Sketch023")
sketch24.AttachmentSupport = (doc.getObject("XZ_Plane"), [""])
sketch24.MapMode = "FlatFace"
sketch24.AttachmentOffset = App.Placement(V(0, 0, -15), App.Rotation())
sketch24.addGeometry([
    Part.LineSegment(V(130, -6, 0), V(118, -6, 0)),
    Part.ArcOfCircle(Part.Circle(V(118, 0, 0), V(0, 0, 1), 6), math.radians(90), math.radians(270)),
    Part.LineSegment(V(118, 6, 0), V(130, 6, 0)),
    Part.ArcOfCircle(Part.Circle(V(130, 0, 0), V(0, 0, 1), 6), math.radians(-90), math.radians(90)),
], False)
sketch24.addConstraint([
    Sketcher.Constraint("Tangent", 0, 2, 1, 2),
    Sketcher.Constraint("Tangent", 1, 1, 2, 1),
    Sketcher.Constraint("Tangent", 2, 2, 3, 2),
    Sketcher.Constraint("Tangent", 3, 1, 0, 1),
    Sketcher.Constraint("Horizontal", 0),
    Sketcher.Constraint("Horizontal", 2),
    Sketcher.Constraint("PointOnObject", 1, 3, -1),
    Sketcher.Constraint("Radius", 1, Q("6.5 mm")),
    Sketcher.Constraint("DistanceX", 0, 2, 0, 1, Q("12 mm")),
    Sketcher.Constraint("DistanceX", -1, 1, 1, 3, Q("118.5 mm")),
])
sketch24.setExpression("Constraints[7]", "Params.sketch24_radius")
sketch24.setExpression("Constraints[8]", "Params.sketch24_width")
pocket23 = body.newObject("PartDesign::Pocket", "Pocket022")
pocket23.Profile = sketch24
pocket23.Type = "UpToFirst"
pocket23.Reversed = True

# Sketch on XZ plane
sketch25 = body.newObject("Sketcher::SketchObject", "Sketch024")
sketch25.AttachmentSupport = (doc.getObject("XZ_Plane"), [""])
sketch25.MapMode = "FlatFace"
sketch25.AttachmentOffset = App.Placement(V(0, 0, -15), App.Rotation())
sketch25.addGeometry([
    Part.LineSegment(V(206, -6, 0), V(194, -6, 0)),
    Part.ArcOfCircle(Part.Circle(V(194, 0, 0), V(0, 0, 1), 6), math.radians(90), math.radians(270)),
    Part.LineSegment(V(194, 6, 0), V(206, 6, 0)),
    Part.ArcOfCircle(Part.Circle(V(206, 0, 0), V(0, 0, 1), 6), math.radians(-90), math.radians(90)),
], False)
sketch25.addConstraint([
    Sketcher.Constraint("Tangent", 0, 2, 1, 2),
    Sketcher.Constraint("Tangent", 1, 1, 2, 1),
    Sketcher.Constraint("Tangent", 2, 2, 3, 2),
    Sketcher.Constraint("Tangent", 3, 1, 0, 1),
    Sketcher.Constraint("Horizontal", 0),
    Sketcher.Constraint("Horizontal", 2),
    Sketcher.Constraint("PointOnObject", 1, 3, -1),
    Sketcher.Constraint("Radius", 1, Q("6.5 mm")),
    Sketcher.Constraint("DistanceX", 0, 2, 0, 1, Q("12 mm")),
    Sketcher.Constraint("DistanceX", -1, 1, 1, 3, Q("194.5 mm")),
])
sketch25.setExpression("Constraints[7]", "Params.sketch25_radius")
sketch25.setExpression("Constraints[8]", "Params.sketch25_width")
pocket24 = body.newObject("PartDesign::Pocket", "Pocket023")
pocket24.Profile = sketch25
pocket24.Type = "UpToFirst"
pocket24.Reversed = True

doc.recompute()
